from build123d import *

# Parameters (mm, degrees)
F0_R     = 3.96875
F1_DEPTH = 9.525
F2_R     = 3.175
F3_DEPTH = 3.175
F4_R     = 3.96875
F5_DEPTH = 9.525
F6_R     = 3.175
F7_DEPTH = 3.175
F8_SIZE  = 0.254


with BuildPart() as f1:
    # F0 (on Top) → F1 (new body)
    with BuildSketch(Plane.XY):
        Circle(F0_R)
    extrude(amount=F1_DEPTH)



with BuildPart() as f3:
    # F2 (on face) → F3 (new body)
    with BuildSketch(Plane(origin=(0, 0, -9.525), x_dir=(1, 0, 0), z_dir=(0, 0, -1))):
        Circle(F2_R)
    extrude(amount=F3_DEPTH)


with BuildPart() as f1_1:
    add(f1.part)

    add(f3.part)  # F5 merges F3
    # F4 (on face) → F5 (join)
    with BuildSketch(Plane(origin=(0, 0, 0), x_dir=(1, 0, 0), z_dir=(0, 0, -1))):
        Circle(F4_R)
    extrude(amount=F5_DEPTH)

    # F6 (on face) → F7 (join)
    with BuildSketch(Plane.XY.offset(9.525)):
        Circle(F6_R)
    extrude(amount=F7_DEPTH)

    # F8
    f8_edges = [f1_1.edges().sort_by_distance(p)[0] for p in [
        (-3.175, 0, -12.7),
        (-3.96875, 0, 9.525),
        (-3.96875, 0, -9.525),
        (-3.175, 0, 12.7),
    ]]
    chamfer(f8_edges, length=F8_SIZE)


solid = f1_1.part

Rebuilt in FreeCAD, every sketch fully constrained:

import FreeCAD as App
import Part
import Sketcher

V = App.Vector
Q = App.Units.Quantity


def edges_at(feature, points):
    """Names of the edges that pass closest to the given points."""
    edges = feature.Shape.Edges
    near = lambda p: min(range(len(edges)), key=lambda i: edges[i].distToShape(Part.Vertex(*p))[0])
    return sorted({f"Edge{near(p) + 1}" for p in points})

doc = App.newDocument("Part")
body = doc.addObject("PartDesign::Body", "Body")

# Sketch on XY plane
sketch1 = body.newObject("Sketcher::SketchObject", "Sketch")
sketch1.AttachmentSupport = (doc.getObject("XY_Plane"), [""])
sketch1.MapMode = "FlatFace"
sketch1.addGeometry(Part.Circle(V(0, 0, 0), V(0, 0, 1), 4), False)
sketch1.addConstraint([
    Sketcher.Constraint("Coincident", 0, 3, -1, 1),
    Sketcher.Constraint("Diameter", 0, Q("0.3125 in")),
])
pad1 = body.newObject("PartDesign::Pad", "Pad")
pad1.Profile = sketch1
pad1.Length = Q("0.375 in")
body2 = doc.addObject("PartDesign::Body", "Body001")

# Sketch on XY plane
sketch2 = body2.newObject("Sketcher::SketchObject", "Sketch001")
sketch2.AttachmentSupport = (doc.getObject("XY_Plane001"), [""])
sketch2.MapMode = "FlatFace"
sketch2.AttachmentOffset = App.Placement(V(0, 0, -0.375 * 25.4), App.Rotation())
sketch2.addGeometry(Part.Circle(V(0, 0, 0), V(0, 0, 1), 3.2), False)
sketch2.addConstraint([
    Sketcher.Constraint("Coincident", 0, 3, -1, 1),
    Sketcher.Constraint("Diameter", 0, Q("0.25 in")),
])
pad2 = body2.newObject("PartDesign::Pad", "Pad001")
pad2.Profile = sketch2
pad2.Length = Q("0.125 in")
pad2.Reversed = True
body.AllowCompound = True
doc.recompute()

boolean = body.newObject("PartDesign::Boolean", "Boolean")
boolean.Type = "Fuse"
boolean.addObjects([body2])

# Sketch on XY plane
sketch3 = body.newObject("Sketcher::SketchObject", "Sketch002")
sketch3.AttachmentSupport = (doc.getObject("XY_Plane"), [""])
sketch3.MapMode = "FlatFace"
sketch3.addGeometry(Part.Circle(V(0, 0, 0), V(0, 0, 1), 4), False)
sketch3.addConstraint([
    Sketcher.Constraint("Coincident", 0, 3, -1, 1),
    Sketcher.Constraint("Diameter", 0, Q("0.3125 in")),
])
pad3 = body.newObject("PartDesign::Pad", "Pad002")
pad3.Profile = sketch3
pad3.Length = Q("0.375 in")
pad3.Reversed = True

# Sketch on XY plane
sketch4 = body.newObject("Sketcher::SketchObject", "Sketch003")
sketch4.AttachmentSupport = (doc.getObject("XY_Plane"), [""])
sketch4.MapMode = "FlatFace"
sketch4.AttachmentOffset = App.Placement(V(0, 0, 0.375 * 25.4), App.Rotation())
sketch4.addGeometry(Part.Circle(V(0, 0, 0), V(0, 0, 1), 3.2), False)
sketch4.addConstraint([
    Sketcher.Constraint("Coincident", 0, 3, -1, 1),
    Sketcher.Constraint("Diameter", 0, Q("0.25 in")),
])
pad4 = body.newObject("PartDesign::Pad", "Pad003")
pad4.Profile = sketch4
pad4.Length = Q("0.125 in")
doc.recompute()

chamfer = body.newObject("PartDesign::Chamfer", "Chamfer")
chamfer.Base = (pad4, edges_at(pad4, [
    (-3.175, 0, -12.7),
    (-3.969, 0, 9.525),
    (-3.969, 0, -9.525),
    (-3.175, 0, 12.7),
]))
chamfer.Size = Q("0.01 in")

doc.recompute()
